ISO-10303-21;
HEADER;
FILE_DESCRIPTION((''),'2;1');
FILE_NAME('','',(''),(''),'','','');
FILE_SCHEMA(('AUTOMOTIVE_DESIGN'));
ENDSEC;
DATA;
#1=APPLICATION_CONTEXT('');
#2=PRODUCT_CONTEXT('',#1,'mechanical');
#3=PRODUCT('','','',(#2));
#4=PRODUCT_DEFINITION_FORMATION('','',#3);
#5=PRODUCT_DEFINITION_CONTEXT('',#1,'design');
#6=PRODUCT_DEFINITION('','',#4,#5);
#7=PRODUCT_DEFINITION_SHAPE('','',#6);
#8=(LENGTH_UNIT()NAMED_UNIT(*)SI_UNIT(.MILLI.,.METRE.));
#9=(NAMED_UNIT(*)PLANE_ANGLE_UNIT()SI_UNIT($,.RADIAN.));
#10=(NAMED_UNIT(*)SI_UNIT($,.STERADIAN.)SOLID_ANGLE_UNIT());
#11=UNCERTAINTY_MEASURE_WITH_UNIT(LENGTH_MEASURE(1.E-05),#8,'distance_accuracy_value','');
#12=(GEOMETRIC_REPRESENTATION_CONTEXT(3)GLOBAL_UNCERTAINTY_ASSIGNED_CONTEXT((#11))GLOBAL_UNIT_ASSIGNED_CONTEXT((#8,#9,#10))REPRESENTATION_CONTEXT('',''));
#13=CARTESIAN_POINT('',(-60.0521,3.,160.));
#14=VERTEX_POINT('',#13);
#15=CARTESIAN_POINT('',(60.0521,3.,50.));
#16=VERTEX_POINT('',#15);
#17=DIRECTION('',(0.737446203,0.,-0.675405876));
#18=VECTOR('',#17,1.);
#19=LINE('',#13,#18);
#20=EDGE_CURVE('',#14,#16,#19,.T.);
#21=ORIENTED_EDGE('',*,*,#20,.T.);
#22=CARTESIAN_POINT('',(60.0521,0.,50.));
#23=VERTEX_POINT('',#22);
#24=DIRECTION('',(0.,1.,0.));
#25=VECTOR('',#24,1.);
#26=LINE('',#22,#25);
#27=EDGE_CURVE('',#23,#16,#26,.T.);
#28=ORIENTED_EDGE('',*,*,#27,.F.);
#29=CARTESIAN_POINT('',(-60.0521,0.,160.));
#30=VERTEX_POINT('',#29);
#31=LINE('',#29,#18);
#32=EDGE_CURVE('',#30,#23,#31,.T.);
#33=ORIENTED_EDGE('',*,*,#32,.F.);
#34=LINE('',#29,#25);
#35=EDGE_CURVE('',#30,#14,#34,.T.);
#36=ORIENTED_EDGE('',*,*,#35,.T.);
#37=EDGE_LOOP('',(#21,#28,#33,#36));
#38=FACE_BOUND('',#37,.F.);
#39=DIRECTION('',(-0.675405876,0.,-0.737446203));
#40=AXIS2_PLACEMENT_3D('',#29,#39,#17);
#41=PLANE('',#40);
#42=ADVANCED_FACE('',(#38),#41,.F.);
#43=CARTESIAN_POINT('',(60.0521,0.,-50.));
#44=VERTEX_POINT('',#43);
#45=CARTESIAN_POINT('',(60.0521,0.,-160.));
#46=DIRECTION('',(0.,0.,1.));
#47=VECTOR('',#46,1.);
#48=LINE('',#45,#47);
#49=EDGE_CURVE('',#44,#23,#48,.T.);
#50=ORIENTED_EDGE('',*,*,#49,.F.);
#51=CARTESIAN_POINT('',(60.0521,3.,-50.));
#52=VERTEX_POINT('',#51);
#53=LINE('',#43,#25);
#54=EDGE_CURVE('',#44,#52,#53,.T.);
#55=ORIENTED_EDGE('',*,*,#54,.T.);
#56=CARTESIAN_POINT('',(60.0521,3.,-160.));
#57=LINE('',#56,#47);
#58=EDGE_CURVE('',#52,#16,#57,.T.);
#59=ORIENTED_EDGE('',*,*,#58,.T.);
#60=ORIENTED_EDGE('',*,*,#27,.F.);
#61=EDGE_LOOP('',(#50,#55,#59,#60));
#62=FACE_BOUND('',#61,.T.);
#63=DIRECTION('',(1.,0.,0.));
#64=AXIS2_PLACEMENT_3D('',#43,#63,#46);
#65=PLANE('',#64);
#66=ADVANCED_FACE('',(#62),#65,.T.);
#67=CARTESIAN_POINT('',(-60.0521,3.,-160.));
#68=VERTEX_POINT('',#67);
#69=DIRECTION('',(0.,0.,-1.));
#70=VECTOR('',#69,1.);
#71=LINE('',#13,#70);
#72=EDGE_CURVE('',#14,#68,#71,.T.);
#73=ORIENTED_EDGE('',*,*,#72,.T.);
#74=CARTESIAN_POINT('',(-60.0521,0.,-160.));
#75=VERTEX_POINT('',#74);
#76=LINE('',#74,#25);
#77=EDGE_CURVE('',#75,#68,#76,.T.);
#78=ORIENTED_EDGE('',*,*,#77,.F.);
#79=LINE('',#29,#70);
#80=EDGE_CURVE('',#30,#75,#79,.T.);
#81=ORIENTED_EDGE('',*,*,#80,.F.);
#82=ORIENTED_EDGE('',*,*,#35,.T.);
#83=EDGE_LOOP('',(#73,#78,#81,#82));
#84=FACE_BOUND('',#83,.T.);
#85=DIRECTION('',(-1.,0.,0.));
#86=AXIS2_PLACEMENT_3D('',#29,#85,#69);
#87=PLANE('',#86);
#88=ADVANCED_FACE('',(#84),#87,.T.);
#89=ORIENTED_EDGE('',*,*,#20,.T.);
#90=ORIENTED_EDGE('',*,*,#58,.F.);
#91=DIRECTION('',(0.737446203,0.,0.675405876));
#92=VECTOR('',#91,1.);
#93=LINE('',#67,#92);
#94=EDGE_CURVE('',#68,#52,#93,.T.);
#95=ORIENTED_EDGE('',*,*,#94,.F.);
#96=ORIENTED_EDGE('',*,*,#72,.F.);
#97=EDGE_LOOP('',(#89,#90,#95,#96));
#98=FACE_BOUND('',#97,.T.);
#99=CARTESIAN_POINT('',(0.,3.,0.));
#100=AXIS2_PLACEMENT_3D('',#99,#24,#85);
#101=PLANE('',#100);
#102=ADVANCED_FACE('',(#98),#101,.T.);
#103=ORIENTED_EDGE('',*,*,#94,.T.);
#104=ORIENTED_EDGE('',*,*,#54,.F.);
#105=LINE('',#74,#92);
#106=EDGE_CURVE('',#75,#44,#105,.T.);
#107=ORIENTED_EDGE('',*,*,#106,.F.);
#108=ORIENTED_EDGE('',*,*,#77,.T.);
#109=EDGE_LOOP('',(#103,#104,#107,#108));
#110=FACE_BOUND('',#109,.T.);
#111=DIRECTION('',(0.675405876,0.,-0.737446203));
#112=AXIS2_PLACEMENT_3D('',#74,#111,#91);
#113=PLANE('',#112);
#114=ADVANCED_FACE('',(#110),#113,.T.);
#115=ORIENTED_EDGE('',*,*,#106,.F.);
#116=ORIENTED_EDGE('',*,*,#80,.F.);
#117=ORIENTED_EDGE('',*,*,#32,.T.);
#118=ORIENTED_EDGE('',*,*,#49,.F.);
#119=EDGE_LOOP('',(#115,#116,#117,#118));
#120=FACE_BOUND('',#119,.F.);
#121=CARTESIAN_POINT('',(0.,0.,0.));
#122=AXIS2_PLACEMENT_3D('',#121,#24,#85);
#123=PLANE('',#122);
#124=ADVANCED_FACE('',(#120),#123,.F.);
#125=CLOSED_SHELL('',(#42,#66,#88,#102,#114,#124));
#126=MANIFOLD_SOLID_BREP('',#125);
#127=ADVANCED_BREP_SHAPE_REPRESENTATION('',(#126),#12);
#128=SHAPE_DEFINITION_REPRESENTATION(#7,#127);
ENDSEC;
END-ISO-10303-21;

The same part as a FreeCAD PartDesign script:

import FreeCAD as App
import Part
import Sketcher
Q = App.Units.Quantity


def add_polygon(sketch, points):
    """Adds a closed chain of lines whose ends are joined by coincident constraints."""
    first, n = sketch.GeometryCount, len(points)
    for a, b in zip(points, points[1:] + points[:1]):
        sketch.addGeometry(Part.LineSegment(App.Vector(*a, 0), App.Vector(*b, 0)), False)
    for i in range(n):
        sketch.addConstraint(Sketcher.Constraint("Coincident", first + i, 2, first + (i + 1) % n, 1))

doc = App.newDocument("Part")
body = doc.addObject("PartDesign::Body", "Body")

# Sketch on XZ plane
sketch1 = body.newObject("Sketcher::SketchObject", "Sketch")
sketch1.AttachmentSupport = (doc.getObject("XZ_Plane"), [""])
sketch1.MapMode = "FlatFace"
add_polygon(sketch1, [(-60.0521, -160), (-60.0521, 160), (60.0521, 50), (60.0521, -50)])  # lines 0-3
sketch1.addConstraint(Sketcher.Constraint("Vertical", 0))
sketch1.addConstraint(Sketcher.Constraint("Vertical", 2))
sketch1.addConstraint(Sketcher.Constraint("Equal", 1, 3))
sketch1.addConstraint(Sketcher.Constraint("DistanceY", 2, 2, 2, 1, Q("3.937 in")))
sketch1.addConstraint(Sketcher.Constraint("Distance", 1, Q("6.412 in")))
sketch1.addConstraint(Sketcher.Constraint("DistanceY", 0, 1, 0, 2, Q("320 mm")))
sketch1.addConstraint(Sketcher.Constraint("DistanceY", -1, 1, 1, 2, Q("1.9685 in")))
sketch1.addConstraint(Sketcher.Constraint("DistanceX", 0, 2, -1, 1, Q("60.052 mm")))
pad1 = body.newObject("PartDesign::Pad", "Pad")
pad1.Profile = sketch1
pad1.Length = Q("0.1181102 in")
pad1.Reversed = True

doc.recompute()
